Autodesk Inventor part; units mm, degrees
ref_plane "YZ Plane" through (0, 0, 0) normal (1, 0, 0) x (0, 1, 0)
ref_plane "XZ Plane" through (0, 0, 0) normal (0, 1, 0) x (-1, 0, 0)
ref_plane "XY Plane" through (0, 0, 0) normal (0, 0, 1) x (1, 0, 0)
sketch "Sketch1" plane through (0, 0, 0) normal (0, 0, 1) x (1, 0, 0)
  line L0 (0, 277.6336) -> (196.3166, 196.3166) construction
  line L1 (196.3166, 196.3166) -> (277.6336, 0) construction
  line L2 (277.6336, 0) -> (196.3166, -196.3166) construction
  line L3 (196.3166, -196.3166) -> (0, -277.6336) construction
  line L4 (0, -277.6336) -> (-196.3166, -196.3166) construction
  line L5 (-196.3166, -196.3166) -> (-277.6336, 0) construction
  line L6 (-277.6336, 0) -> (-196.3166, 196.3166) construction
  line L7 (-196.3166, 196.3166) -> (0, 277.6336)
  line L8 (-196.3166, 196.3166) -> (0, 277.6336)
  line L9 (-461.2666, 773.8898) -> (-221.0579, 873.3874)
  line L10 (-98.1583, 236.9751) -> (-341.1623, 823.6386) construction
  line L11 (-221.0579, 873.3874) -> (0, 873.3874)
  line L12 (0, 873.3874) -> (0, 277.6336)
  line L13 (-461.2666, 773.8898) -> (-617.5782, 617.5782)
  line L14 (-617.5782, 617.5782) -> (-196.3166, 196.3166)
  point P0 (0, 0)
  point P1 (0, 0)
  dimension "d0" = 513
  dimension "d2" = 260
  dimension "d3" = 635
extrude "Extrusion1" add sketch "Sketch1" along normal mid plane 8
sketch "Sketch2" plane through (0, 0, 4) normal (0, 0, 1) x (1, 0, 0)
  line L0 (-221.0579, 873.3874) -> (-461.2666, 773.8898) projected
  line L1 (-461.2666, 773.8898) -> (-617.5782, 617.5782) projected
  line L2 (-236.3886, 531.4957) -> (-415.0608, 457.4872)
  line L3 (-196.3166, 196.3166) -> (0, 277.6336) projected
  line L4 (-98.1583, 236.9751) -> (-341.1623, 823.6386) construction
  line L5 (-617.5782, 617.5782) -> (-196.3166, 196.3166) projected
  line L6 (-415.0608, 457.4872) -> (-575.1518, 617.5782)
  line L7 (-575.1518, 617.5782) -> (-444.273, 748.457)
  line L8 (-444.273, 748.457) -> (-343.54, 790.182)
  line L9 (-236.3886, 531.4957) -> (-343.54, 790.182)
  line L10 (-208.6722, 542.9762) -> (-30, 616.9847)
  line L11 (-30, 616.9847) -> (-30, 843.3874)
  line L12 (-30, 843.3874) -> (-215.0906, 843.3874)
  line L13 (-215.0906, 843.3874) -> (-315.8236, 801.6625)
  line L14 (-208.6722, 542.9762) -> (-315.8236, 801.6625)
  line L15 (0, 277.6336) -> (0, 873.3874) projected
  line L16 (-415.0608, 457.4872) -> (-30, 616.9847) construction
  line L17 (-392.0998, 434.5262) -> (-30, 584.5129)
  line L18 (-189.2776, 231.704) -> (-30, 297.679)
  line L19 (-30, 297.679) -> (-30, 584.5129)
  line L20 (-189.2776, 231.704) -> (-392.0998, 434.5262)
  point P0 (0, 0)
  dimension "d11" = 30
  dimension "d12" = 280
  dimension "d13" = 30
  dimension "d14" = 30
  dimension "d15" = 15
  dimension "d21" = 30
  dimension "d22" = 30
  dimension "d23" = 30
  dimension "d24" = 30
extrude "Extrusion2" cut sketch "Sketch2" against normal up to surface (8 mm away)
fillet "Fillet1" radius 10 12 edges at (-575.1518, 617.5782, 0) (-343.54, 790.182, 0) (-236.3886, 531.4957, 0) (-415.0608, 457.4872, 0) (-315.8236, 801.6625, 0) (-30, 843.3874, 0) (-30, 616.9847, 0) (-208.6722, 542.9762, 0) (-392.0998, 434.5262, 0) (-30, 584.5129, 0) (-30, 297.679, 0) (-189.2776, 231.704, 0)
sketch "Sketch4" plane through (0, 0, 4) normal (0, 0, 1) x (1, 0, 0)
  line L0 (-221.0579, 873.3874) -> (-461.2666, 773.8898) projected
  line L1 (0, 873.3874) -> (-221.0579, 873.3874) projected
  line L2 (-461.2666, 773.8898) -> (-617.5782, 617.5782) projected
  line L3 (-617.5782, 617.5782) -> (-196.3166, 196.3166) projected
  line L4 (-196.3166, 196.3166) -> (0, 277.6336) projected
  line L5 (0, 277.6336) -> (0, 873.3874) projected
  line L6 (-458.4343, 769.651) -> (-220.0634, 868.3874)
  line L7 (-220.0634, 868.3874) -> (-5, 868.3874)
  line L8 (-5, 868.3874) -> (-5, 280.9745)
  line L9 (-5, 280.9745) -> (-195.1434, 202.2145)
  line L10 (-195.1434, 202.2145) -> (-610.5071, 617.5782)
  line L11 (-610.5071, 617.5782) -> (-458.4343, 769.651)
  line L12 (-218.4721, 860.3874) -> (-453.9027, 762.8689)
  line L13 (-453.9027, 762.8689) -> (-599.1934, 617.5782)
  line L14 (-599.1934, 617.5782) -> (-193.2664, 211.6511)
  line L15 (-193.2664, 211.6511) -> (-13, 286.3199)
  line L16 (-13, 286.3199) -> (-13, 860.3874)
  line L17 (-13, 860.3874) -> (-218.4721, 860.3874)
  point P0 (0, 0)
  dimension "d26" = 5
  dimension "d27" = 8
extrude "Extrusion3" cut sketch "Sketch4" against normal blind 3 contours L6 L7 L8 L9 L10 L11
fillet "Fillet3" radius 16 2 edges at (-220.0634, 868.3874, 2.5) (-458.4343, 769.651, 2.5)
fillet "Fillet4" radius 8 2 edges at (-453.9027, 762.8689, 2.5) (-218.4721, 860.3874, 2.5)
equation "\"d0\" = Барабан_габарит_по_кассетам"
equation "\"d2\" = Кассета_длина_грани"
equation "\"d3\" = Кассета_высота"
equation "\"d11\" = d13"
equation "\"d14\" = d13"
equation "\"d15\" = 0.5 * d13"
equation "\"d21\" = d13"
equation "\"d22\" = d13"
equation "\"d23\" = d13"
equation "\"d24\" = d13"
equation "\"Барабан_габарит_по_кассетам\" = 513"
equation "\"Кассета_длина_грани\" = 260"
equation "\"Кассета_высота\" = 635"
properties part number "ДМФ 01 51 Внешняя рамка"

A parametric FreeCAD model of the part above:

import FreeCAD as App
import Part
import Sketcher
Q = App.Units.Quantity


def edges_at(feature, points):
    """Names of the edges that pass closest to the given points."""
    edges = feature.Shape.Edges
    near = lambda p: min(range(len(edges)), key=lambda i: edges[i].distToShape(Part.Vertex(*p))[0])
    return sorted({f"Edge{near(p) + 1}" for p in points})

doc = App.newDocument("Part")
body = doc.addObject("PartDesign::Body", "Body")

sketch1 = body.newObject("Sketcher::SketchObject", "Sketch")
sketch1.AttachmentSupport = (doc.getObject("XY_Plane"), [""])
sketch1.MapMode = "FlatFace"
sketch1.addGeometry([
    Part.LineSegment(App.Vector(-618, 618, 0), App.Vector(-196, 196, 0)),
    Part.LineSegment(App.Vector(-196, 196, 0), App.Vector(0, 278, 0)),
    Part.LineSegment(App.Vector(0, 278, 0), App.Vector(0, 873, 0)),
    Part.LineSegment(App.Vector(0, 873, 0), App.Vector(-221, 873, 0)),
    Part.LineSegment(App.Vector(-221, 873, 0), App.Vector(-461, 774, 0)),
    Part.LineSegment(App.Vector(-461, 774, 0), App.Vector(-618, 618, 0)),
], False)
sketch1.addConstraint([
    Sketcher.Constraint("Coincident", 0, 2, 1, 1),
    Sketcher.Constraint("Coincident", 1, 2, 2, 1),
    Sketcher.Constraint("Coincident", 2, 2, 3, 1),
    Sketcher.Constraint("Coincident", 3, 2, 4, 1),
    Sketcher.Constraint("Coincident", 4, 2, 5, 1),
    Sketcher.Constraint("Coincident", 5, 2, 0, 1),
    Sketcher.Constraint("Vertical", 2),
    Sketcher.Constraint("Horizontal", 3),
    Sketcher.Constraint("PointOnObject", 1, 2, -2),
    Sketcher.Constraint("Parallel", 1, 4),
    Sketcher.Constraint("Perpendicular", 0, 5),
    Sketcher.Constraint("Distance", 4, Q("260 mm")),
    Sketcher.Constraint("Angle", 0, Q("-45 deg")),
    Sketcher.Constraint("Angle", 1, Q("22.5 deg")),
    Sketcher.Constraint("DistanceX", 3, 2, 3, 1, Q("221.058 mm")),
    Sketcher.Constraint("DistanceX", 4, 2, 0, 2, Q("264.95 mm")),
    Sketcher.Constraint("Distance", 5, Q("221.058 mm")),
    Sketcher.Constraint("DistanceY", -1, 1, 0, 2, Q("196.3166 mm")),
])
pad1 = body.newObject("PartDesign::Pad", "Pad")
pad1.Profile = sketch1
pad1.Length = 8
pad1.Midplane = True

sketch2 = body.newObject("Sketcher::SketchObject", "Sketch001")
sketch2.AttachmentSupport = (doc.getObject("XY_Plane"), [""])
sketch2.MapMode = "FlatFace"
sketch2.AttachmentOffset = App.Placement(App.Vector(0, 0, 4), App.Rotation())
sketch2.addGeometry([
    Part.LineSegment(App.Vector(-415, 457, 0), App.Vector(-236, 531, 0)),
    Part.LineSegment(App.Vector(-236, 531, 0), App.Vector(-344, 790, 0)),
    Part.LineSegment(App.Vector(-344, 790, 0), App.Vector(-444, 748, 0)),
    Part.LineSegment(App.Vector(-444, 748, 0), App.Vector(-575, 618, 0)),
    Part.LineSegment(App.Vector(-575, 618, 0), App.Vector(-415, 457, 0)),
    Part.LineSegment(App.Vector(-316, 802, 0), App.Vector(-209, 543, 0)),
    Part.LineSegment(App.Vector(-209, 543, 0), App.Vector(-30, 617, 0)),
    Part.LineSegment(App.Vector(-30, 617, 0), App.Vector(-30, 843, 0)),
    Part.LineSegment(App.Vector(-30, 843, 0), App.Vector(-215, 843, 0)),
    Part.LineSegment(App.Vector(-215, 843, 0), App.Vector(-316, 802, 0)),
    Part.LineSegment(App.Vector(-30, 585, 0), App.Vector(-392, 435, 0)),
    Part.LineSegment(App.Vector(-392, 435, 0), App.Vector(-189, 232, 0)),
    Part.LineSegment(App.Vector(-189, 232, 0), App.Vector(-30, 298, 0)),
    Part.LineSegment(App.Vector(-30, 298, 0), App.Vector(-30, 585, 0)),
], False)
sketch2.addConstraint([
    Sketcher.Constraint("Coincident", 0, 2, 1, 1),
    Sketcher.Constraint("Coincident", 1, 2, 2, 1),
    Sketcher.Constraint("Coincident", 2, 2, 3, 1),
    Sketcher.Constraint("Coincident", 3, 2, 4, 1),
    Sketcher.Constraint("Coincident", 4, 2, 0, 1),
    Sketcher.Constraint("Coincident", 5, 2, 6, 1),
    Sketcher.Constraint("Coincident", 6, 2, 7, 1),
    Sketcher.Constraint("Coincident", 7, 2, 8, 1),
    Sketcher.Constraint("Coincident", 8, 2, 9, 1),
    Sketcher.Constraint("Coincident", 9, 2, 5, 1),
    Sketcher.Constraint("Coincident", 10, 2, 11, 1),
    Sketcher.Constraint("Coincident", 11, 2, 12, 1),
    Sketcher.Constraint("Coincident", 12, 2, 13, 1),
    Sketcher.Constraint("Coincident", 13, 2, 10, 1),
    Sketcher.Constraint("Vertical", 7),
    Sketcher.Constraint("Horizontal", 8),
    Sketcher.Constraint("Vertical", 13),
    Sketcher.Constraint("Perpendicular", 0, 1),
    Sketcher.Constraint("Perpendicular", 1, 2),
    Sketcher.Constraint("Perpendicular", 3, 4),
    Sketcher.Constraint("Perpendicular", 2, 5),
    Sketcher.Constraint("Perpendicular", 5, 6),
    Sketcher.Constraint("Parallel", 6, 9),
    Sketcher.Constraint("Parallel", 9, 10),
    Sketcher.Constraint("Parallel", 4, 11),
    Sketcher.Constraint("Parallel", 10, 12),
    Sketcher.Constraint("Vertical", 7, 2, 12, 2),
    Sketcher.Constraint("Equal", 1, 5),
    Sketcher.Constraint("Equal", 0, 6),
    Sketcher.Constraint("Equal", 2, 9),
    Sketcher.Constraint("Distance", 1, Q("280 mm")),
    Sketcher.Constraint("DistanceX", 6, 2, -1, 1, Q("30 mm")),
    Sketcher.Constraint("Angle", 3, Q("-135 deg")),
    Sketcher.Constraint("Angle", 0, Q("22.5 deg")),
    Sketcher.Constraint("DistanceY", 13, 1, 13, 2, Q("286.834 mm")),
    Sketcher.Constraint("DistanceX", 1, 2, -1, 1, Q("343.54 mm")),
    Sketcher.Constraint("DistanceY", 10, 2, 5, 2, Q("108.45 mm")),
    Sketcher.Constraint("Distance", 10, Q("391.934 mm")),
    Sketcher.Constraint("DistanceX", 8, 2, 8, 1, Q("185.0906 mm")),
    Sketcher.Constraint("DistanceY", -1, 1, 1, 2, Q("790.182 mm")),
    Sketcher.Constraint("DistanceX", 2, 2, -1, 1, Q("444.273 mm")),
    Sketcher.Constraint("DistanceY", -1, 1, 11, 2, Q("231.704 mm")),
])
pocket1 = body.newObject("PartDesign::Pocket", "Pocket")
pocket1.Profile = sketch2
pocket1.Length = 8
doc.recompute()

fillet = body.newObject("PartDesign::Fillet", "Fillet")
fillet.Base = (pocket1, edges_at(pocket1, [
    (-575.152, 617.578, 0),
    (-343.54, 790.182, 0),
    (-236.389, 531.496, 0),
    (-415.061, 457.487, 0),
    (-315.824, 801.663, 0),
    (-30, 843.387, 0),
    (-30, 616.985, 0),
    (-208.672, 542.976, 0),
    (-392.1, 434.526, 0),
    (-30, 584.513, 0),
    (-30, 297.679, 0),
    (-189.278, 231.704, 0),
]))
fillet.Radius = 10

sketch3 = body.newObject("Sketcher::SketchObject", "Sketch002")
sketch3.AttachmentSupport = (doc.getObject("XY_Plane"), [""])
sketch3.MapMode = "FlatFace"
sketch3.AttachmentOffset = App.Placement(App.Vector(0, 0, 4), App.Rotation())
sketch3.addGeometry([
    Part.LineSegment(App.Vector(-220, 868, 0), App.Vector(-458, 770, 0)),
    Part.LineSegment(App.Vector(-458, 770, 0), App.Vector(-611, 618, 0)),
    Part.LineSegment(App.Vector(-611, 618, 0), App.Vector(-195, 202, 0)),
    Part.LineSegment(App.Vector(-195, 202, 0), App.Vector(-5, 281, 0)),
    Part.LineSegment(App.Vector(-5, 281, 0), App.Vector(-5, 868, 0)),
    Part.LineSegment(App.Vector(-5, 868, 0), App.Vector(-220, 868, 0)),
    Part.LineSegment(App.Vector(-454, 763, 0), App.Vector(-218, 860, 0)),
    Part.LineSegment(App.Vector(-218, 860, 0), App.Vector(-13, 860, 0)),
    Part.LineSegment(App.Vector(-13, 860, 0), App.Vector(-13, 286, 0)),
    Part.LineSegment(App.Vector(-13, 286, 0), App.Vector(-193, 212, 0)),
    Part.LineSegment(App.Vector(-193, 212, 0), App.Vector(-599, 618, 0)),
    Part.LineSegment(App.Vector(-599, 618, 0), App.Vector(-454, 763, 0)),
], False)
sketch3.addConstraint([
    Sketcher.Constraint("Coincident", 0, 2, 1, 1),
    Sketcher.Constraint("Coincident", 1, 2, 2, 1),
    Sketcher.Constraint("Coincident", 2, 2, 3, 1),
    Sketcher.Constraint("Coincident", 3, 2, 4, 1),
    Sketcher.Constraint("Coincident", 4, 2, 5, 1),
    Sketcher.Constraint("Coincident", 5, 2, 0, 1),
    Sketcher.Constraint("Coincident", 6, 2, 7, 1),
    Sketcher.Constraint("Coincident", 7, 2, 8, 1),
    Sketcher.Constraint("Coincident", 8, 2, 9, 1),
    Sketcher.Constraint("Coincident", 9, 2, 10, 1),
    Sketcher.Constraint("Coincident", 10, 2, 11, 1),
    Sketcher.Constraint("Coincident", 11, 2, 6, 1),
    Sketcher.Constraint("Vertical", 4),
    Sketcher.Constraint("Horizontal", 5),
    Sketcher.Constraint("Horizontal", 7),
    Sketcher.Constraint("Vertical", 8),
    Sketcher.Constraint("Perpendicular", 1, 2),
    Sketcher.Constraint("Parallel", 0, 3),
    Sketcher.Constraint("Parallel", 3, 6),
    Sketcher.Constraint("Parallel", 6, 9),
    Sketcher.Constraint("Parallel", 2, 10),
    Sketcher.Constraint("Perpendicular", 10, 11),
    Sketcher.Constraint("Horizontal", 1, 2, 10, 2),
    Sketcher.Constraint("DistanceX", 3, 2, -1, 1, Q("5 mm")),
    Sketcher.Constraint("DistanceY", 6, 2, 5, 2, Q("8 mm")),
    Sketcher.Constraint("DistanceX", 7, 2, 4, 2, Q("8 mm")),
    Sketcher.Constraint("Angle", 1, Q("-135 deg")),
    Sketcher.Constraint("Angle", 0, Q("-157.5 deg")),
    Sketcher.Constraint("DistanceY", 9, 2, 0, 2, Q("558 mm")),
    Sketcher.Constraint("DistanceX", 7, 1, 7, 2, Q("205.472 mm")),
    Sketcher.Constraint("DistanceY", 4, 1, 4, 2, Q("587.413 mm")),
    Sketcher.Constraint("DistanceY", -1, 1, 8, 2, Q("286.32 mm")),
    Sketcher.Constraint("DistanceY", 2, 2, 3, 2, Q("78.76 mm")),
    Sketcher.Constraint("DistanceX", 5, 2, 2, 2, Q("24.92 mm")),
    Sketcher.Constraint("DistanceX", 10, 2, 5, 2, Q("379.13 mm")),
    Sketcher.Constraint("Distance", 2, Q("587.413 mm")),
])
pocket2 = body.newObject("PartDesign::Pocket", "Pocket001")
pocket2.Profile = sketch3
pocket2.Length = 3
doc.recompute()

fillet2 = body.newObject("PartDesign::Fillet", "Fillet001")
fillet2.Base = (pocket2, edges_at(pocket2, [(-220.063, 868.387, 2.5), (-458.434, 769.651, 2.5)]))
fillet2.Radius = 16
doc.recompute()

fillet3 = body.newObject("PartDesign::Fillet", "Fillet002")
fillet3.Base = (fillet2, edges_at(fillet2, [(-453.903, 762.869, 2.5), (-218.472, 860.387, 2.5)]))
fillet3.Radius = 8

doc.recompute()
